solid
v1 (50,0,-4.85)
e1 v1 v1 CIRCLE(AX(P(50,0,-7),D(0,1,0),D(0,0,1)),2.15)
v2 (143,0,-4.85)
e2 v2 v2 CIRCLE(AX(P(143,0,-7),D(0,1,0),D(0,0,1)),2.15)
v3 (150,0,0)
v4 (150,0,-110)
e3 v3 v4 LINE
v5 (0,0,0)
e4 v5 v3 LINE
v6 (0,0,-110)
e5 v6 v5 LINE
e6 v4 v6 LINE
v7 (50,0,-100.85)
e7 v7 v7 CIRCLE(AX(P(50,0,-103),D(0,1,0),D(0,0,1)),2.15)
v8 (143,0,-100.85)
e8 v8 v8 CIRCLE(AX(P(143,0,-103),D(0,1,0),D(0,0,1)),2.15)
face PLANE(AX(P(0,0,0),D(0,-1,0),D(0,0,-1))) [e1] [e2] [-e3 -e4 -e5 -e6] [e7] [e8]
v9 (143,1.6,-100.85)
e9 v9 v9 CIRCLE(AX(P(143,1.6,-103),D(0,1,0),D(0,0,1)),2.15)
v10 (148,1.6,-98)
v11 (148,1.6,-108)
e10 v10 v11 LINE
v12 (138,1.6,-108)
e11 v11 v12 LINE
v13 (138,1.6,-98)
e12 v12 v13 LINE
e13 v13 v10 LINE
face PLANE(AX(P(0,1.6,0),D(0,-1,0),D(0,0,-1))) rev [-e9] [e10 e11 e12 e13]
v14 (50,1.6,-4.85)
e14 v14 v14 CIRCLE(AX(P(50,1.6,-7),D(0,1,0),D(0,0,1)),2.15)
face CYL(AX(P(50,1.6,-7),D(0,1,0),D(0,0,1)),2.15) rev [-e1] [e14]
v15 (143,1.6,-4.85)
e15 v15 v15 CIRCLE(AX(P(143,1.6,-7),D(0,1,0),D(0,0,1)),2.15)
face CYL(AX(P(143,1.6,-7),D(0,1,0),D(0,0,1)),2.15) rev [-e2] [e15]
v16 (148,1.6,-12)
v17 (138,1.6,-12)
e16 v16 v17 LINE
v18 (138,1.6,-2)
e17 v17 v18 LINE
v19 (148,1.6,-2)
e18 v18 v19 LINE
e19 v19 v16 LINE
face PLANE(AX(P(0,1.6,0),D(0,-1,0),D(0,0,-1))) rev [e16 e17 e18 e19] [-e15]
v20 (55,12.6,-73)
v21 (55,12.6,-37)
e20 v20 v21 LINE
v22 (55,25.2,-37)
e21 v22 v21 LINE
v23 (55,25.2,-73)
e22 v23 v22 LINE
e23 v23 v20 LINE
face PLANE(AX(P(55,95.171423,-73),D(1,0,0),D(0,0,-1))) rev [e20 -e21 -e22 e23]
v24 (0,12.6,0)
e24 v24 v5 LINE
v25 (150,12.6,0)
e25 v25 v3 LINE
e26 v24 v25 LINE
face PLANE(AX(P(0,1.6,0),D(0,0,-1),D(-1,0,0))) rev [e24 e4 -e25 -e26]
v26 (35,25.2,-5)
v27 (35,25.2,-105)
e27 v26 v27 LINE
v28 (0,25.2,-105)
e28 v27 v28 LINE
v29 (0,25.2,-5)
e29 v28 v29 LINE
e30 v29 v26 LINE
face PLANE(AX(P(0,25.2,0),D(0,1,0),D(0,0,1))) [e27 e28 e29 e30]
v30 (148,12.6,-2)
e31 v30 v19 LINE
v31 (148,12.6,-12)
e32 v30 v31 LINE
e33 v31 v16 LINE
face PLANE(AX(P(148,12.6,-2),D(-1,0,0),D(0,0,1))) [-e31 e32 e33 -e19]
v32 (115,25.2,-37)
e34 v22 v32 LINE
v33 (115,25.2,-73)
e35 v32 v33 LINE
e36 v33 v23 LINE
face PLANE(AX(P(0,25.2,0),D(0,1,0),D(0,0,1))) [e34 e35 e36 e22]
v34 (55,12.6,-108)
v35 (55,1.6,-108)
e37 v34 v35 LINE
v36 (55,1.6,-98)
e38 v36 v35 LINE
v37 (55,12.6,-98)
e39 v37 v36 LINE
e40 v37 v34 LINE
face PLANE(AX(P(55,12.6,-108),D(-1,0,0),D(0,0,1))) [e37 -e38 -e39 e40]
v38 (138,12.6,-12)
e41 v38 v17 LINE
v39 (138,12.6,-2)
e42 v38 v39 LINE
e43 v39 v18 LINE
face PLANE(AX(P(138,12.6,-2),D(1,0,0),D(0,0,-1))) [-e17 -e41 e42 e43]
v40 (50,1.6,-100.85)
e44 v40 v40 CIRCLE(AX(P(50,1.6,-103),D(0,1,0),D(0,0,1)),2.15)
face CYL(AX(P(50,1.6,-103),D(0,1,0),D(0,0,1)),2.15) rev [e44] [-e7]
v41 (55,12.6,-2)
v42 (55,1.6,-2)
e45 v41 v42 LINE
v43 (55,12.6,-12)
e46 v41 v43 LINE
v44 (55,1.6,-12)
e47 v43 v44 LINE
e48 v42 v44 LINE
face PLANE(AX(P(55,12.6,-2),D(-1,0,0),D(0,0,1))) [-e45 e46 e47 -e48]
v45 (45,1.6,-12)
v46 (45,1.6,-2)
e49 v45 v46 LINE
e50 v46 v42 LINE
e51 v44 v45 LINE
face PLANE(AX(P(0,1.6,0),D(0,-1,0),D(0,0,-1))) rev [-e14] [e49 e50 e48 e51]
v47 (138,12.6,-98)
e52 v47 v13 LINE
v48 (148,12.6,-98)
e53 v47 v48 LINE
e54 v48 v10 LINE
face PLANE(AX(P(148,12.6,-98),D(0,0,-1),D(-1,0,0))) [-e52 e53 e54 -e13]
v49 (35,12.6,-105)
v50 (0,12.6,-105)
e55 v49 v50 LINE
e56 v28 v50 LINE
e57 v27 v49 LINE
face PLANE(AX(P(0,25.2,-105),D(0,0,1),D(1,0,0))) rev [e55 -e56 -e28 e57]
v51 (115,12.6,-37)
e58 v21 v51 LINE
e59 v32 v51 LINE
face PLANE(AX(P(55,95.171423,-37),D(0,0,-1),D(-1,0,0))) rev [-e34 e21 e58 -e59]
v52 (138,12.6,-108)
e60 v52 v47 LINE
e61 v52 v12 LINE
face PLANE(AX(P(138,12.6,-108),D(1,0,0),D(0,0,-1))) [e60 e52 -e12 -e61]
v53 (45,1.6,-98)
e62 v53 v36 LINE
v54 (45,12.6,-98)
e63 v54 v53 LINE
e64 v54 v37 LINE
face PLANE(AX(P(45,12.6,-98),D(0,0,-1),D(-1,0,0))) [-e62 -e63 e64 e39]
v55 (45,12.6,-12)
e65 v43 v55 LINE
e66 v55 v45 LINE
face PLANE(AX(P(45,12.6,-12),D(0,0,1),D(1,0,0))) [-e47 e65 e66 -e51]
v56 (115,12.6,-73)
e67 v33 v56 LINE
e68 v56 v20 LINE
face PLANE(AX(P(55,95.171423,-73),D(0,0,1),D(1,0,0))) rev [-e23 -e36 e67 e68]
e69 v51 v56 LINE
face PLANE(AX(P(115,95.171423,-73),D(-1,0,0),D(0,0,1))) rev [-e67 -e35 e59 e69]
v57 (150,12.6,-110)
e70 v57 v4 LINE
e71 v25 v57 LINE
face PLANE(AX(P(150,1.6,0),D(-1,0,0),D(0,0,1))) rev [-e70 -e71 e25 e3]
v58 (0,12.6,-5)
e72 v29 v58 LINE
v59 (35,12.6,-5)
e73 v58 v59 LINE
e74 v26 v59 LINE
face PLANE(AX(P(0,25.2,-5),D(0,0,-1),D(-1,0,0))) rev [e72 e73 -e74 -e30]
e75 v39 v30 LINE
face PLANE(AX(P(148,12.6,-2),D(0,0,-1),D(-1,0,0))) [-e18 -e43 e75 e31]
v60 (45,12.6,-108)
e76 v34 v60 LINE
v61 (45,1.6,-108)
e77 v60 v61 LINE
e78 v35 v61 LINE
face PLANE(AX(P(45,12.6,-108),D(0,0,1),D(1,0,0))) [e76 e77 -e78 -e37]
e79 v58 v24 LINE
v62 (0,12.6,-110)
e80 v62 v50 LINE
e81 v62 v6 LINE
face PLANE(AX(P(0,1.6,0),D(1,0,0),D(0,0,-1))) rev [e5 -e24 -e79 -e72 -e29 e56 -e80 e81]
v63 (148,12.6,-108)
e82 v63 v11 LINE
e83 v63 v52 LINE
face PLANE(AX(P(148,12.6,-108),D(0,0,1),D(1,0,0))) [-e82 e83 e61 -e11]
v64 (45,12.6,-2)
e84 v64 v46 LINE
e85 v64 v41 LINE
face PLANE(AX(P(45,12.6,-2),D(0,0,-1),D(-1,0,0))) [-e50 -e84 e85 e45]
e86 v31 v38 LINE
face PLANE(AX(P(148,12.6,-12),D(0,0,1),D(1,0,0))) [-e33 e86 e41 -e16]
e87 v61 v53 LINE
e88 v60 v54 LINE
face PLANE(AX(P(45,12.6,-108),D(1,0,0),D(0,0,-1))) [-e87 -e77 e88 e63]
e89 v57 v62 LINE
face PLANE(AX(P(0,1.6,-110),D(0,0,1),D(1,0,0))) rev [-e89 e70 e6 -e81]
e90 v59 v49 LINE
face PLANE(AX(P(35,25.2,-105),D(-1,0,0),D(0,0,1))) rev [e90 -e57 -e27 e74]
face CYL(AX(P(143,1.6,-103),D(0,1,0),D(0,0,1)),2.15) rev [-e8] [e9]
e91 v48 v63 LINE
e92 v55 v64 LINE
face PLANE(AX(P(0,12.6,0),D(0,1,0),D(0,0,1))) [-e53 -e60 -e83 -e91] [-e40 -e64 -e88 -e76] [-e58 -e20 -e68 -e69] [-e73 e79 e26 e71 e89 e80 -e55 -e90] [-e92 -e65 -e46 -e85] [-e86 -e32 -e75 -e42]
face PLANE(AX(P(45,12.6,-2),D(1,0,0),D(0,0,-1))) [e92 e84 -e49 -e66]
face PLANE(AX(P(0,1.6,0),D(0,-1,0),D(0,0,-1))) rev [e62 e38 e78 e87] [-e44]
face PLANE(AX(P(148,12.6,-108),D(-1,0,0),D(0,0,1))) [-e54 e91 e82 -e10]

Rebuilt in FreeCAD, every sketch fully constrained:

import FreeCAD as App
import Part
import Sketcher
from FreeCAD import Vector


def add_polygon(sketch, points):
    """Adds a closed chain of lines whose ends are joined by coincident constraints."""
    first, n = sketch.GeometryCount, len(points)
    for a, b in zip(points, points[1:] + points[:1]):
        sketch.addGeometry(Part.LineSegment(App.Vector(*a, 0), App.Vector(*b, 0)), False)
    for i in range(n):
        sketch.addConstraint(Sketcher.Constraint("Coincident", first + i, 2, first + (i + 1) % n, 1))

doc = App.newDocument("Part")
params = doc.addObject("Spreadsheet::Sheet", "Params")
for row, (alias, value) in enumerate([
    ("sketch1_width", "150 mm"),
    ("sketch1_height", "110 mm"),
    ("pad1_length", "1.6 mm"),
    ("sketch2_width", "150 mm"),
    ("sketch2_width2", "10 mm"),
    ("sketch2_height", "110 mm"),
    ("pad2_length", "11 mm"),
    ("sketch3_diameter", "4.3 mm"),
    ("hole_diameter", "4.3 mm"),
    ("sketch4_width", "35 mm"),
    ("sketch4_height", "100 mm"),
    ("pad3_length", "12.6 mm"),
    ("sketch5_width", "60 mm"),
    ("sketch5_height", "36 mm"),
    ("pad4_length", "12.6 mm"),
], start=1):
    params.set(f"A{row}", alias)
    params.set(f"B{row}", "=" + value)
    params.setAlias(f"B{row}", alias)

body = doc.addObject("PartDesign::Body", "Body")

# Sketch on XZ plane
sketch1 = doc.addObject("Sketcher::SketchObject", "Sketch")
body.addObject(sketch1)
sketch1.AttachmentSupport = (doc.XZ_Plane, [""])
sketch1.MapMode = "FlatFace"
add_polygon(sketch1, [(0, -110), (0, 0), (150, 0), (150, -110)])  # lines 0-3
sketch1.addConstraint([
    Sketcher.Constraint("Vertical", 0),
    Sketcher.Constraint("Horizontal", 1),
    Sketcher.Constraint("Vertical", 2),
    Sketcher.Constraint("Horizontal", 3),
    Sketcher.Constraint("Coincident", 0, 2, -1, 1),
    Sketcher.Constraint("DistanceX", 1, 1, 1, 2, 150.0),
    Sketcher.Constraint("DistanceY", 0, 1, 0, 2, 110.0),
])
sketch1.setExpression("Constraints[9]", "Params.sketch1_width")
sketch1.setExpression("Constraints[10]", "Params.sketch1_height")
pad1 = doc.addObject("PartDesign::Pad", "Pad")
body.addObject(pad1)
pad1.Profile = sketch1
pad1.setExpression("Length", "Params.pad1_length")
pad1.Reversed = True

# Sketch on XZ plane
sketch2 = doc.addObject("Sketcher::SketchObject", "Sketch001")
body.addObject(sketch2)
sketch2.AttachmentSupport = (doc.XZ_Plane, [""])
sketch2.MapMode = "FlatFace"
sketch2.AttachmentOffset = App.Placement(Vector(0, 0, -1.6), App.Rotation())
add_polygon(sketch2, [(0, -110), (0, 0), (150, 0), (150, -110)])  # lines 0-3
add_polygon(sketch2, [(55, -2), (45, -2), (45, -12), (55, -12)])  # lines 4-7
add_polygon(sketch2, [(148, -2), (138, -2), (138, -12), (148, -12)])  # lines 8-11
add_polygon(sketch2, [(55, -98), (45, -98), (45, -108), (55, -108)])  # lines 12-15
add_polygon(sketch2, [(148, -98), (138, -98), (138, -108), (148, -108)])  # lines 16-19
sketch2.addConstraint([
    Sketcher.Constraint("Vertical", 0),
    Sketcher.Constraint("Horizontal", 1),
    Sketcher.Constraint("Vertical", 2),
    Sketcher.Constraint("Horizontal", 3),
    Sketcher.Constraint("Horizontal", 4),
    Sketcher.Constraint("Vertical", 5),
    Sketcher.Constraint("Horizontal", 6),
    Sketcher.Constraint("Vertical", 7),
    Sketcher.Constraint("Horizontal", 8),
    Sketcher.Constraint("Vertical", 9),
    Sketcher.Constraint("Horizontal", 10),
    Sketcher.Constraint("Vertical", 11),
    Sketcher.Constraint("Horizontal", 12),
    Sketcher.Constraint("Vertical", 13),
    Sketcher.Constraint("Horizontal", 14),
    Sketcher.Constraint("Vertical", 15),
    Sketcher.Constraint("Horizontal", 16),
    Sketcher.Constraint("Vertical", 17),
    Sketcher.Constraint("Horizontal", 18),
    Sketcher.Constraint("Vertical", 19),
    Sketcher.Constraint("Coincident", 0, 2, -1, 1),
    Sketcher.Constraint("Horizontal", 7, 2, 8, 2),
    Sketcher.Constraint("Horizontal", 6, 2, 9, 2),
    Sketcher.Constraint("Horizontal", 15, 2, 16, 2),
    Sketcher.Constraint("Horizontal", 14, 2, 17, 2),
    Sketcher.Constraint("Vertical", 5, 2, 12, 2),
    Sketcher.Constraint("Vertical", 7, 2, 14, 2),
    Sketcher.Constraint("Vertical", 9, 2, 16, 2),
    Sketcher.Constraint("Vertical", 11, 2, 18, 2),
    Sketcher.Constraint("Equal", 6, 8),
    Sketcher.Constraint("Equal", 18, 5),
    Sketcher.Constraint("Equal", 11, 13),
    Sketcher.Constraint("DistanceX", 1, 1, 1, 2, 150.0),
    Sketcher.Constraint("DistanceX", 4, 2, 4, 1, 10.0),
    Sketcher.Constraint("DistanceY", 0, 1, 0, 2, 110.0),
    Sketcher.Constraint("DistanceX", -1, 1, 4, 2, 45.0),
    Sketcher.Constraint("DistanceY", 4, 2, -1, 1, 2.0),
    Sketcher.Constraint("DistanceX", -1, 1, 8, 2, 138.0),
    Sketcher.Constraint("DistanceY", 12, 2, -1, 1, 98.0),
])
sketch2.setExpression("Constraints[52]", "Params.sketch2_width")
sketch2.setExpression("Constraints[53]", "Params.sketch2_width2")
sketch2.setExpression("Constraints[54]", "Params.sketch2_height")
pad2 = doc.addObject("PartDesign::Pad", "Pad001")
body.addObject(pad2)
pad2.Profile = sketch2
pad2.setExpression("Length", "Params.pad2_length")
pad2.Reversed = True

# Sketch on XZ plane
sketch3 = doc.addObject("Sketcher::SketchObject", "Sketch002")
body.addObject(sketch3)
sketch3.AttachmentSupport = (doc.XZ_Plane, [""])
sketch3.MapMode = "FlatFace"
sketch3.AttachmentOffset = App.Placement(Vector(0, 0, -1.6), App.Rotation())
sketch3.addGeometry([
    Part.Circle(Vector(143, -103, 0), Vector(0, 0, 1), 2.1),
    Part.Circle(Vector(50, -103, 0), Vector(0, 0, 1), 2.1),
    Part.Circle(Vector(50, -7, 0), Vector(0, 0, 1), 2.1),
    Part.Circle(Vector(143, -7, 0), Vector(0, 0, 1), 2.1),
], False)
sketch3.addConstraint([
    Sketcher.Constraint("Equal", 0, 1),
    Sketcher.Constraint("Equal", 1, 2),
    Sketcher.Constraint("Equal", 2, 3),
    Sketcher.Constraint("Horizontal", 0, 3, 1, 3),
    Sketcher.Constraint("Horizontal", 2, 3, 3, 3),
    Sketcher.Constraint("Vertical", 1, 3, 2, 3),
    Sketcher.Constraint("Vertical", 0, 3, 3, 3),
    Sketcher.Constraint("Diameter", 0, 4.3),
    Sketcher.Constraint("DistanceX", -1, 1, 0, 3, 143.0),
    Sketcher.Constraint("DistanceY", 0, 3, -1, 1, 103.0),
    Sketcher.Constraint("DistanceX", -1, 1, 1, 3, 50.0),
    Sketcher.Constraint("DistanceY", 2, 3, -1, 1, 7.0),
])
sketch3.setExpression("Constraints[7]", "Params.sketch3_diameter")
doc.recompute()
hole = doc.addObject("PartDesign::Hole", "Hole")
body.addObject(hole)
hole.Profile = sketch3
hole.ThreadType = "None"
hole.setExpression("Diameter", "Params.hole_diameter")
hole.DepthType = "ThroughAll"
hole.Reversed = True

# Sketch on XZ plane
sketch4 = doc.addObject("Sketcher::SketchObject", "Sketch003")
body.addObject(sketch4)
sketch4.AttachmentSupport = (doc.XZ_Plane, [""])
sketch4.MapMode = "FlatFace"
sketch4.AttachmentOffset = App.Placement(Vector(0, 0, -12.6), App.Rotation())
add_polygon(sketch4, [(0, -105), (0, -5), (35, -5), (35, -105)])  # lines 0-3
sketch4.addConstraint([
    Sketcher.Constraint("Vertical", 0),
    Sketcher.Constraint("Horizontal", 1),
    Sketcher.Constraint("Vertical", 2),
    Sketcher.Constraint("Horizontal", 3),
    Sketcher.Constraint("PointOnObject", 0, 2, -2),
    Sketcher.Constraint("DistanceX", 1, 1, 1, 2, 35.0),
    Sketcher.Constraint("DistanceY", 0, 1, 0, 2, 100.0),
    Sketcher.Constraint("DistanceY", 0, 2, -1, 1, 5.0),
])
sketch4.setExpression("Constraints[9]", "Params.sketch4_width")
sketch4.setExpression("Constraints[10]", "Params.sketch4_height")
pad3 = doc.addObject("PartDesign::Pad", "Pad002")
body.addObject(pad3)
pad3.Profile = sketch4
pad3.setExpression("Length", "Params.pad3_length")
pad3.Reversed = True

# Sketch on XZ plane
sketch5 = doc.addObject("Sketcher::SketchObject", "Sketch004")
body.addObject(sketch5)
sketch5.AttachmentSupport = (doc.XZ_Plane, [""])
sketch5.MapMode = "FlatFace"
sketch5.AttachmentOffset = App.Placement(Vector(0, 0, -12.6), App.Rotation())
add_polygon(sketch5, [(55, -73), (55, -37), (115, -37), (115, -73)])  # lines 0-3
sketch5.addConstraint([
    Sketcher.Constraint("Vertical", 0),
    Sketcher.Constraint("Horizontal", 1),
    Sketcher.Constraint("Vertical", 2),
    Sketcher.Constraint("Horizontal", 3),
    Sketcher.Constraint("DistanceX", 1, 1, 1, 2, 60.0),
    Sketcher.Constraint("DistanceY", 0, 1, 0, 2, 36.0),
    Sketcher.Constraint("DistanceX", -1, 1, 0, 2, 55.0),
    Sketcher.Constraint("DistanceY", 0, 2, -1, 1, 37.0),
])
sketch5.setExpression("Constraints[8]", "Params.sketch5_width")
sketch5.setExpression("Constraints[9]", "Params.sketch5_height")
pad4 = doc.addObject("PartDesign::Pad", "Pad003")
body.addObject(pad4)
pad4.Profile = sketch5
pad4.setExpression("Length", "Params.pad4_length")
pad4.Reversed = True

doc.recompute()
